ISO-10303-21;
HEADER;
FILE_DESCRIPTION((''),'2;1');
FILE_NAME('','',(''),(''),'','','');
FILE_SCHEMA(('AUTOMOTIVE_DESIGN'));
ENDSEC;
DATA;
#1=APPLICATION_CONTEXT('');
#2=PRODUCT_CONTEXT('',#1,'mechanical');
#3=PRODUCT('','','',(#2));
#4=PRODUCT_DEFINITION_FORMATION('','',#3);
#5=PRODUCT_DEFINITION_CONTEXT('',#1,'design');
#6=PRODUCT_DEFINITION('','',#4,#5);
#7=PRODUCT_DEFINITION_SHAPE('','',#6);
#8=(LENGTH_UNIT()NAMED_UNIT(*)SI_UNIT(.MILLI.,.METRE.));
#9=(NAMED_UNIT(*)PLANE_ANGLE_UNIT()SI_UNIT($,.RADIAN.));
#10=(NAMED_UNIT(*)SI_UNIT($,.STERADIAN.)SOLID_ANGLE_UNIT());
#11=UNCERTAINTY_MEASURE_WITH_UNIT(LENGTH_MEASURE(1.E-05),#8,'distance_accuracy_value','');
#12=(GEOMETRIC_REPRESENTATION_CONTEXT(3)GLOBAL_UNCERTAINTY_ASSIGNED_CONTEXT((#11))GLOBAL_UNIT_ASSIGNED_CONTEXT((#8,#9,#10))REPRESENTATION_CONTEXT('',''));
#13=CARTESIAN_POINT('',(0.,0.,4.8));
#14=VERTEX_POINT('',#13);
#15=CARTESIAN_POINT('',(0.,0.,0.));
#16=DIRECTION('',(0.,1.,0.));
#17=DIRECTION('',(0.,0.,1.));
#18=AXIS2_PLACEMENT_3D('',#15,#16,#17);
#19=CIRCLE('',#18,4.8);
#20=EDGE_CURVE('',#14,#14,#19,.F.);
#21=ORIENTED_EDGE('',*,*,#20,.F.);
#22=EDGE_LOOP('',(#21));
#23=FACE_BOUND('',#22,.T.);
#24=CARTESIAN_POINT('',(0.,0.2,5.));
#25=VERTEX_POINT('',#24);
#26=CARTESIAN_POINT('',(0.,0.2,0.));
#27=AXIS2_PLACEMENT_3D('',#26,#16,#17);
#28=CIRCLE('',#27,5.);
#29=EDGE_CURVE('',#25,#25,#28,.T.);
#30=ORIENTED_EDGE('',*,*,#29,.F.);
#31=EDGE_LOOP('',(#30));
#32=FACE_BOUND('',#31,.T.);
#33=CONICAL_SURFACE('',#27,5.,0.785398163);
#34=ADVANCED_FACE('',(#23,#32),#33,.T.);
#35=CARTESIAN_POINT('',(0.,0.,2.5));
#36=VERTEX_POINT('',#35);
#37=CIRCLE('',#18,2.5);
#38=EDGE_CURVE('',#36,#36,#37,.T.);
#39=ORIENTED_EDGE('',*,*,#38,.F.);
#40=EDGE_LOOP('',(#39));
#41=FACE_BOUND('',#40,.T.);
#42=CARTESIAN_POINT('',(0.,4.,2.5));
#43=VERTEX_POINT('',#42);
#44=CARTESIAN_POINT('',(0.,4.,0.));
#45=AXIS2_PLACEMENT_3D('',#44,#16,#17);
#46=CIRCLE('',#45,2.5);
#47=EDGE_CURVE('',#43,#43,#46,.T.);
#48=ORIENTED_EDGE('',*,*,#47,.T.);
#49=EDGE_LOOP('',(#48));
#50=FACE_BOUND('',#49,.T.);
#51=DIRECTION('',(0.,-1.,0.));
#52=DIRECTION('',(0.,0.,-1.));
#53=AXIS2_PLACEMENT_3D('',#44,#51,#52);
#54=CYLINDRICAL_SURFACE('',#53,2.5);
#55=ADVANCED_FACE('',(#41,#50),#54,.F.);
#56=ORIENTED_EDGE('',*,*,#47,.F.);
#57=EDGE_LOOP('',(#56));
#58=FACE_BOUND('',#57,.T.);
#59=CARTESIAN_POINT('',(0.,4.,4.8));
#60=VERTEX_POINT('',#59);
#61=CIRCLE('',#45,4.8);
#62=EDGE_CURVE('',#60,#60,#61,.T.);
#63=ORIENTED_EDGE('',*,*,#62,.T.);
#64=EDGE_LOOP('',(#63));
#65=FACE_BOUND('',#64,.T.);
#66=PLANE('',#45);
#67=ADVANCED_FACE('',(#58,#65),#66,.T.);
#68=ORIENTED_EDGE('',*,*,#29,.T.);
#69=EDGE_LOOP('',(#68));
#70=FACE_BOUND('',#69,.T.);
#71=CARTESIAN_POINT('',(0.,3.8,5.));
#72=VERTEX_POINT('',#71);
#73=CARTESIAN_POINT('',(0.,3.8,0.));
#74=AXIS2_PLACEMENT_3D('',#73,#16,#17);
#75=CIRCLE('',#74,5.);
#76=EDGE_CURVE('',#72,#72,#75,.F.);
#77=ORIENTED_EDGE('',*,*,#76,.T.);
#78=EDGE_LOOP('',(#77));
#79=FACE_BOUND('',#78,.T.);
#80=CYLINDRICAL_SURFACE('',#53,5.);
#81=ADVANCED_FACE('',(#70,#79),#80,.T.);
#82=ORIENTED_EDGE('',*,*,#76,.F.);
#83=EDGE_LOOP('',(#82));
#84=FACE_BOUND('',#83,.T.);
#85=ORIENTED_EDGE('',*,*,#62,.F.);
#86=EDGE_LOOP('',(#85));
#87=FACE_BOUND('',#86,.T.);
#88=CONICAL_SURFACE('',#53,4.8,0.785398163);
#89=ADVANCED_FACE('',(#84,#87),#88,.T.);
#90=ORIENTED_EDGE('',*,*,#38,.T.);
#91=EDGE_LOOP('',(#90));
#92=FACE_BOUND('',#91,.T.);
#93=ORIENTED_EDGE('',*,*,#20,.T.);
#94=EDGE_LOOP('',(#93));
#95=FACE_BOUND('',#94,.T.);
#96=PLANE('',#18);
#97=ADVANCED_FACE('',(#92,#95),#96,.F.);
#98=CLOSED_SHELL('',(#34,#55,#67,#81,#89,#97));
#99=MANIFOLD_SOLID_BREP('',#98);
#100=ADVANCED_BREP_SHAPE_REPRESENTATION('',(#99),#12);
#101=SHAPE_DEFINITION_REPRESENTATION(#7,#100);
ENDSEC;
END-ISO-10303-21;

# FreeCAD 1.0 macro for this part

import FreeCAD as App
import Part
import Sketcher
from FreeCAD import Vector


def edges_at(feature, points):
    """Names of the edges that pass closest to the given points."""
    edges = feature.Shape.Edges
    near = lambda p: min(range(len(edges)), key=lambda i: edges[i].distToShape(Part.Vertex(*p))[0])
    return sorted({f"Edge{near(p) + 1}" for p in points})

doc = App.newDocument("Part")
body = doc.addObject("PartDesign::Body", "Body")

# Sketch on XZ plane
sketch1 = body.newObject("Sketcher::SketchObject", "Sketch")
sketch1.AttachmentSupport = (doc.getObject("XZ_Plane"), [""])
sketch1.MapMode = "FlatFace"
sketch1.addGeometry(Part.Circle(Vector(0, 0, 0), Vector(0, 0, 1), 5), False)
sketch1.addGeometry(Part.Circle(Vector(0, 0, 0), Vector(0, 0, 1), 2.5), False)
sketch1.addConstraint(Sketcher.Constraint("Coincident", 0, 3, -1, 1))
sketch1.addConstraint(Sketcher.Constraint("Coincident", 1, 3, -1, 1))
sketch1.addConstraint(Sketcher.Constraint("Diameter", 0, 10.0))
sketch1.addConstraint(Sketcher.Constraint("Diameter", 1, 5.0))
pad1 = body.newObject("PartDesign::Pad", "Pad")
pad1.Profile = sketch1
pad1.Length = 4
pad1.Reversed = True
doc.recompute()

chamfer = body.newObject("PartDesign::Chamfer", "Chamfer")
chamfer.Base = (pad1, edges_at(pad1, [(0, 0, -5), (0, 4, -5)]))
chamfer.Size = 0.2

doc.recompute()
